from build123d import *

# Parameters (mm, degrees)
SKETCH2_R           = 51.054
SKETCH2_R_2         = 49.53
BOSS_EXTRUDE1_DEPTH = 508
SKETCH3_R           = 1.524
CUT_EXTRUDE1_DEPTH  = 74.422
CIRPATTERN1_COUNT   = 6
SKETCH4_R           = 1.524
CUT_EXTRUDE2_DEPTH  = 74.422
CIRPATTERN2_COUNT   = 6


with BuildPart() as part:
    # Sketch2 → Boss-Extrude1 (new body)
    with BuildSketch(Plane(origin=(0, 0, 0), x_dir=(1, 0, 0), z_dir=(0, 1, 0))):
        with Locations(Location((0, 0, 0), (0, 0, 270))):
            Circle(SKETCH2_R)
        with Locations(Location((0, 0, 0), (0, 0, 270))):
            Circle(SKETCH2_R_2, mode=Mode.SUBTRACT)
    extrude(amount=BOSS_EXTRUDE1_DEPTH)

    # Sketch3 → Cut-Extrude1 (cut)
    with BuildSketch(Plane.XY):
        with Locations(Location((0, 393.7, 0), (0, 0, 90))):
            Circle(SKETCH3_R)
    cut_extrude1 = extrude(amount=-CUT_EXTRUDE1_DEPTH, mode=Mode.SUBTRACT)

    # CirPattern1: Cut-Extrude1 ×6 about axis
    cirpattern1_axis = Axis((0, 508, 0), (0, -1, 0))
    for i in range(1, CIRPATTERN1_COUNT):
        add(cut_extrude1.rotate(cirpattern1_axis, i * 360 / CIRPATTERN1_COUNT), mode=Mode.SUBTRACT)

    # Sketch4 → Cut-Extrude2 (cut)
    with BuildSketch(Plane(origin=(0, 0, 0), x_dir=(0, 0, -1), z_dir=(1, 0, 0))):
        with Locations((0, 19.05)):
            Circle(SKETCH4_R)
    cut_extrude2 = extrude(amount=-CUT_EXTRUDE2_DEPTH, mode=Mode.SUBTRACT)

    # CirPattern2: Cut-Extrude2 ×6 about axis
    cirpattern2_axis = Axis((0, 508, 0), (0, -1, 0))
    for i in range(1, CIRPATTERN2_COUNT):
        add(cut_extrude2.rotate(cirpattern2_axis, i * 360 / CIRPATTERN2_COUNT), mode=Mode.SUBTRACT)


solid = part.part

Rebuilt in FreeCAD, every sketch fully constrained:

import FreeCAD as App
import Part
import Sketcher
Q = App.Units.Quantity

doc = App.newDocument("Part")
body = doc.addObject("PartDesign::Body", "Body")

# Sketch on XZ plane
sketch1 = doc.addObject("Sketcher::SketchObject", "Sketch")
body.addObject(sketch1)
sketch1.AttachmentSupport = (doc.XZ_Plane, [""])
sketch1.MapMode = "FlatFace"
sketch1.addGeometry(Part.Circle(App.Vector(0, 0, 0), App.Vector(0, 0, 1), 51.054), False)
sketch1.addGeometry(Part.Circle(App.Vector(0, 0, 0), App.Vector(0, 0, 1), 49.53), False)
sketch1.addConstraint(Sketcher.Constraint("Coincident", 0, 3, -1, 1))
sketch1.addConstraint(Sketcher.Constraint("Coincident", 1, 3, -1, 1))
sketch1.addConstraint(Sketcher.Constraint("Diameter", 1, Q("3.9 in")))
sketch1.addConstraint(Sketcher.Constraint("Diameter", 0, Q("4.02 in")))
pad1 = doc.addObject("PartDesign::Pad", "Pad")
body.addObject(pad1)
pad1.Profile = sketch1
pad1.Length = Q("20 in")
pad1.Reversed = True

# Sketch on XY plane
sketch2 = doc.addObject("Sketcher::SketchObject", "Sketch001")
body.addObject(sketch2)
sketch2.AttachmentSupport = (doc.XY_Plane, [""])
sketch2.MapMode = "FlatFace"
sketch2.addGeometry(Part.Circle(App.Vector(0, 393.7, 0), App.Vector(0, 0, 1), 1.524), False)
sketch2.addConstraint(Sketcher.Constraint("PointOnObject", 0, 3, -2))
sketch2.addConstraint(Sketcher.Constraint("Diameter", 0, Q("0.12 in")))
sketch2.addConstraint(Sketcher.Constraint("DistanceY", -1, 1, 0, 3, Q("15.5 in")))
pocket1 = doc.addObject("PartDesign::Pocket", "Pocket")
body.addObject(pocket1)
pocket1.Profile = sketch2
pocket1.Length = Q("2.93 in")
doc.recompute()

polarpattern = doc.addObject("PartDesign::PolarPattern", "PolarPattern")
body.addObject(polarpattern)
polarpattern.Originals = [pocket1]
polarpattern.Axis = (doc.Y_Axis, [""])
polarpattern.Angle = 360
polarpattern.Occurrences = 6
body.Tip = polarpattern

# Sketch on YZ plane
sketch3 = doc.addObject("Sketcher::SketchObject", "Sketch002")
body.addObject(sketch3)
sketch3.AttachmentSupport = (doc.YZ_Plane, [""])
sketch3.MapMode = "FlatFace"
sketch3.addGeometry(Part.Circle(App.Vector(19.05, 0, 0), App.Vector(0, 0, 1), 1.524), False)
sketch3.addConstraint(Sketcher.Constraint("PointOnObject", 0, 3, -1))
sketch3.addConstraint(Sketcher.Constraint("Diameter", 0, Q("0.12 in")))
sketch3.addConstraint(Sketcher.Constraint("DistanceX", -1, 1, 0, 3, Q("0.75 in")))
pocket2 = doc.addObject("PartDesign::Pocket", "Pocket001")
body.addObject(pocket2)
pocket2.Profile = sketch3
pocket2.Length = Q("2.93 in")
doc.recompute()

polarpattern2 = doc.addObject("PartDesign::PolarPattern", "PolarPattern001")
body.addObject(polarpattern2)
polarpattern2.Originals = [pocket2]
polarpattern2.Axis = (doc.Y_Axis, [""])
polarpattern2.Angle = 360
polarpattern2.Occurrences = 6
body.Tip = polarpattern2

doc.recompute()
